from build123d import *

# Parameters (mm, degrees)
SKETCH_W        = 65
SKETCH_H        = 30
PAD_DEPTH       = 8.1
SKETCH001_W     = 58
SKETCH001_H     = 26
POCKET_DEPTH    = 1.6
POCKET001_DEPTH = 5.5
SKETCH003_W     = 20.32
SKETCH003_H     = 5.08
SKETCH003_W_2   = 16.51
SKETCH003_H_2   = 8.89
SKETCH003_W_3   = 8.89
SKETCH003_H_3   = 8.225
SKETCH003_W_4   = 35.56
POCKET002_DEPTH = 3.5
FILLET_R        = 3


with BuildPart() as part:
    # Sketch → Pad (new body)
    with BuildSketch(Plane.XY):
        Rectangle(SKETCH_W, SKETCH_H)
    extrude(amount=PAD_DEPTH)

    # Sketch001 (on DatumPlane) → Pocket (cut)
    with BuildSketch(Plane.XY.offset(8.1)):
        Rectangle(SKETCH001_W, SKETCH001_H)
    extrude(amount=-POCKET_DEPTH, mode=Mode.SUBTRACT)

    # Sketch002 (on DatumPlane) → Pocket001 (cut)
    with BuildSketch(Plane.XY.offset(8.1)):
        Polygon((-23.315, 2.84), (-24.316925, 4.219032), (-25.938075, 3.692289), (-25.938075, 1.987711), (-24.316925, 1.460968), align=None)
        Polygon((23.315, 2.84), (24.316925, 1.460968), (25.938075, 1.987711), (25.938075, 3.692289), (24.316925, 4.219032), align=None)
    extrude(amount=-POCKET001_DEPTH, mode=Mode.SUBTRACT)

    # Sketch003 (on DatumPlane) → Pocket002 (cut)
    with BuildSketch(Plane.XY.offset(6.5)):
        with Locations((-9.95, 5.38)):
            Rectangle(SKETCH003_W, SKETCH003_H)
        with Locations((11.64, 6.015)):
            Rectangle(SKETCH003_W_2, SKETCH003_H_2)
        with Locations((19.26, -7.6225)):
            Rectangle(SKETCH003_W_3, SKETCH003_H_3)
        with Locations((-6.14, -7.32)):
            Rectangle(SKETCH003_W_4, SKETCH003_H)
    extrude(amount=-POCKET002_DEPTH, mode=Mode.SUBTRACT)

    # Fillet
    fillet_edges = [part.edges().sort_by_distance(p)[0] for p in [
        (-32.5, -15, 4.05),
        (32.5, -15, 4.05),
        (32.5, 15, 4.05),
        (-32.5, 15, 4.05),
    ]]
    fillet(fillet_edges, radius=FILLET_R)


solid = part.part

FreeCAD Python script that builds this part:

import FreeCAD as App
import Part
import Sketcher
from FreeCAD import Vector
Q = App.Units.Quantity


def edges_at(feature, points):
    """Names of the edges that pass closest to the given points."""
    edges = feature.Shape.Edges
    near = lambda p: min(range(len(edges)), key=lambda i: edges[i].distToShape(Part.Vertex(*p))[0])
    return sorted({f"Edge{near(p) + 1}" for p in points})


def add_polygon(sketch, points):
    """Adds a closed chain of lines whose ends are joined by coincident constraints."""
    first, n = sketch.GeometryCount, len(points)
    for a, b in zip(points, points[1:] + points[:1]):
        sketch.addGeometry(Part.LineSegment(App.Vector(*a, 0), App.Vector(*b, 0)), False)
    for i in range(n):
        sketch.addConstraint(Sketcher.Constraint("Coincident", first + i, 2, first + (i + 1) % n, 1))

doc = App.newDocument("Part")
body = doc.addObject("PartDesign::Body", "Body")

# Sketch on XY plane
sketch1 = body.newObject("Sketcher::SketchObject", "Sketch")
sketch1.AttachmentSupport = (doc.getObject("XY_Plane"), [""])
sketch1.MapMode = "FlatFace"
add_polygon(sketch1, [(-32.5, 15), (-32.5, -15), (32.5, -15), (32.5, 15)])  # lines 0-3
sketch1.addConstraint([
    Sketcher.Constraint("Vertical", 0),
    Sketcher.Constraint("Horizontal", 1),
    Sketcher.Constraint("Vertical", 2),
    Sketcher.Constraint("Horizontal", 3),
    Sketcher.Constraint("Symmetric", 0, 2, 2, 2, -1, 1),
    Sketcher.Constraint("DistanceX", 1, 1, 1, 2, Q("65 mm")),
    Sketcher.Constraint("DistanceY", 0, 2, 0, 1, Q("30 mm")),
])
pad1 = body.newObject("PartDesign::Pad", "Pad")
pad1.Profile = sketch1
pad1.Length = 8.1

# Sketch on XY plane
sketch2 = body.newObject("Sketcher::SketchObject", "Sketch001")
sketch2.AttachmentSupport = (doc.getObject("XY_Plane"), [""])
sketch2.MapMode = "FlatFace"
sketch2.AttachmentOffset = App.Placement(Vector(0, 0, 8.1), App.Rotation())
add_polygon(sketch2, [(-29, 13), (-29, -13), (29, -13), (29, 13)])  # lines 0-3
sketch2.addConstraint([
    Sketcher.Constraint("Vertical", 0),
    Sketcher.Constraint("Horizontal", 1),
    Sketcher.Constraint("Vertical", 2),
    Sketcher.Constraint("Horizontal", 3),
    Sketcher.Constraint("Symmetric", 0, 2, 2, 2, -1, 1),
    Sketcher.Constraint("DistanceX", 1, 1, 1, 2, Q("58 mm")),
    Sketcher.Constraint("DistanceY", 0, 2, 0, 1, Q("26 mm")),
])
pocket1 = body.newObject("PartDesign::Pocket", "Pocket")
pocket1.Profile = sketch2
pocket1.Length = 1.6

# Sketch on XY plane
sketch3 = body.newObject("Sketcher::SketchObject", "Sketch002")
sketch3.AttachmentSupport = (doc.getObject("XY_Plane"), [""])
sketch3.MapMode = "FlatFace"
sketch3.AttachmentOffset = App.Placement(Vector(0, 0, 8.1), App.Rotation())
add_polygon(sketch3, [(-23.315, 2.84), (-24.316925, 4.219032), (-25.938075, 3.692289), (-25.938075, 1.987711), (-24.316925, 1.460968)])  # lines 0-4
add_polygon(sketch3, [(23.315, 2.84), (24.316925, 1.460968), (25.938075, 1.987711), (25.938075, 3.692289), (24.316925, 4.219032)])  # lines 5-9
sketch3.addConstraint([
    Sketcher.Constraint("Vertical", 2),
    Sketcher.Constraint("Vertical", 7),
    Sketcher.Constraint("Symmetric", 3, 2, 5, 2, -2),
    Sketcher.Constraint("Symmetric", 2, 2, 6, 2, -2),
    Sketcher.Constraint("Symmetric", 0, 2, 8, 2, -2),
    Sketcher.Constraint("Symmetric", 4, 2, 9, 2, -2),
    Sketcher.Constraint("Parallel", 0, 5),
    Sketcher.Constraint("Parallel", 1, 6),
    Sketcher.Constraint("Parallel", 3, 8),
    Sketcher.Constraint("Vertical", 0, 2, 3, 2),
    Sketcher.Constraint("Equal", 0, 1),
    Sketcher.Constraint("Angle", 0, Q("125.999989 deg")),
    Sketcher.Constraint("Angle", 1, Q("-162.000018 deg")),
    Sketcher.Constraint("DistanceY", -1, 1, 4, 2, Q("2.84 mm")),
    Sketcher.Constraint("DistanceX", 4, 2, 9, 2, Q("46.63 mm")),
    Sketcher.Constraint("DistanceX", 2, 2, 5, 2, Q("50.255 mm")),
])
pocket2 = body.newObject("PartDesign::Pocket", "Pocket001")
pocket2.Profile = sketch3
pocket2.Length = 5.5

# Sketch on XY plane
sketch4 = body.newObject("Sketcher::SketchObject", "Sketch003")
sketch4.AttachmentSupport = (doc.getObject("XY_Plane"), [""])
sketch4.MapMode = "FlatFace"
sketch4.AttachmentOffset = App.Placement(Vector(0, 0, 6.5), App.Rotation())
add_polygon(sketch4, [(-20.11, 7.92), (-20.11, 2.84), (0.21, 2.84), (0.21, 7.92)])  # lines 0-3
add_polygon(sketch4, [(3.385, 10.46), (3.385, 1.57), (19.895, 1.57), (19.895, 10.46)])  # lines 4-7
add_polygon(sketch4, [(14.815, -3.51), (14.815, -11.735), (23.705, -11.735), (23.705, -3.51)])  # lines 8-11
add_polygon(sketch4, [(-23.92, -4.78), (-23.92, -9.86), (11.64, -9.86), (11.64, -4.78)])  # lines 12-15
sketch4.addConstraint([
    Sketcher.Constraint("Vertical", 0),
    Sketcher.Constraint("Horizontal", 1),
    Sketcher.Constraint("Vertical", 2),
    Sketcher.Constraint("Horizontal", 3),
    Sketcher.Constraint("Vertical", 4),
    Sketcher.Constraint("Horizontal", 5),
    Sketcher.Constraint("Vertical", 6),
    Sketcher.Constraint("Horizontal", 7),
    Sketcher.Constraint("Vertical", 8),
    Sketcher.Constraint("Horizontal", 9),
    Sketcher.Constraint("Vertical", 10),
    Sketcher.Constraint("Horizontal", 11),
    Sketcher.Constraint("Vertical", 12),
    Sketcher.Constraint("Horizontal", 13),
    Sketcher.Constraint("Vertical", 14),
    Sketcher.Constraint("Horizontal", 15),
    Sketcher.Constraint("Equal", 11, 4),
    Sketcher.Constraint("Equal", 2, 12),
    Sketcher.Constraint("DistanceX", 1, 1, 1, 2, Q("20.32 mm")),
    Sketcher.Constraint("DistanceX", 5, 1, 5, 2, Q("16.51 mm")),
    Sketcher.Constraint("DistanceX", 9, 1, 9, 2, Q("8.89 mm")),
    Sketcher.Constraint("DistanceX", 13, 1, 13, 2, Q("35.56 mm")),
    Sketcher.Constraint("DistanceY", 0, 2, 0, 1, Q("5.08 mm")),
    Sketcher.Constraint("DistanceY", 12, 2, 0, 2, Q("12.7 mm")),
    Sketcher.Constraint("DistanceY", 8, 2, 8, 1, Q("8.225 mm")),
    Sketcher.Constraint("DistanceX", 0, 2, -1, 1, Q("20.11 mm")),
    Sketcher.Constraint("DistanceY", -1, 1, 0, 2, Q("2.84 mm")),
    Sketcher.Constraint("DistanceY", -1, 1, 4, 2, Q("1.57 mm")),
    Sketcher.Constraint("DistanceY", 10, 2, -1, 1, Q("3.51 mm")),
    Sketcher.Constraint("DistanceX", 12, 2, -1, 1, Q("23.92 mm")),
    Sketcher.Constraint("DistanceX", 8, 2, 5, 2, Q("5.08 mm")),
    Sketcher.Constraint("DistanceX", -1, 1, 4, 2, Q("3.385 mm")),
])
pocket3 = body.newObject("PartDesign::Pocket", "Pocket002")
pocket3.Profile = sketch4
pocket3.Length = 3.5
doc.recompute()

fillet = body.newObject("PartDesign::Fillet", "Fillet")
fillet.Base = (pocket3, edges_at(pocket3, [
    (-32.5, -15, 4.05),
    (32.5, -15, 4.05),
    (32.5, 15, 4.05),
    (-32.5, 15, 4.05),
]))
fillet.Radius = 3

doc.recompute()
